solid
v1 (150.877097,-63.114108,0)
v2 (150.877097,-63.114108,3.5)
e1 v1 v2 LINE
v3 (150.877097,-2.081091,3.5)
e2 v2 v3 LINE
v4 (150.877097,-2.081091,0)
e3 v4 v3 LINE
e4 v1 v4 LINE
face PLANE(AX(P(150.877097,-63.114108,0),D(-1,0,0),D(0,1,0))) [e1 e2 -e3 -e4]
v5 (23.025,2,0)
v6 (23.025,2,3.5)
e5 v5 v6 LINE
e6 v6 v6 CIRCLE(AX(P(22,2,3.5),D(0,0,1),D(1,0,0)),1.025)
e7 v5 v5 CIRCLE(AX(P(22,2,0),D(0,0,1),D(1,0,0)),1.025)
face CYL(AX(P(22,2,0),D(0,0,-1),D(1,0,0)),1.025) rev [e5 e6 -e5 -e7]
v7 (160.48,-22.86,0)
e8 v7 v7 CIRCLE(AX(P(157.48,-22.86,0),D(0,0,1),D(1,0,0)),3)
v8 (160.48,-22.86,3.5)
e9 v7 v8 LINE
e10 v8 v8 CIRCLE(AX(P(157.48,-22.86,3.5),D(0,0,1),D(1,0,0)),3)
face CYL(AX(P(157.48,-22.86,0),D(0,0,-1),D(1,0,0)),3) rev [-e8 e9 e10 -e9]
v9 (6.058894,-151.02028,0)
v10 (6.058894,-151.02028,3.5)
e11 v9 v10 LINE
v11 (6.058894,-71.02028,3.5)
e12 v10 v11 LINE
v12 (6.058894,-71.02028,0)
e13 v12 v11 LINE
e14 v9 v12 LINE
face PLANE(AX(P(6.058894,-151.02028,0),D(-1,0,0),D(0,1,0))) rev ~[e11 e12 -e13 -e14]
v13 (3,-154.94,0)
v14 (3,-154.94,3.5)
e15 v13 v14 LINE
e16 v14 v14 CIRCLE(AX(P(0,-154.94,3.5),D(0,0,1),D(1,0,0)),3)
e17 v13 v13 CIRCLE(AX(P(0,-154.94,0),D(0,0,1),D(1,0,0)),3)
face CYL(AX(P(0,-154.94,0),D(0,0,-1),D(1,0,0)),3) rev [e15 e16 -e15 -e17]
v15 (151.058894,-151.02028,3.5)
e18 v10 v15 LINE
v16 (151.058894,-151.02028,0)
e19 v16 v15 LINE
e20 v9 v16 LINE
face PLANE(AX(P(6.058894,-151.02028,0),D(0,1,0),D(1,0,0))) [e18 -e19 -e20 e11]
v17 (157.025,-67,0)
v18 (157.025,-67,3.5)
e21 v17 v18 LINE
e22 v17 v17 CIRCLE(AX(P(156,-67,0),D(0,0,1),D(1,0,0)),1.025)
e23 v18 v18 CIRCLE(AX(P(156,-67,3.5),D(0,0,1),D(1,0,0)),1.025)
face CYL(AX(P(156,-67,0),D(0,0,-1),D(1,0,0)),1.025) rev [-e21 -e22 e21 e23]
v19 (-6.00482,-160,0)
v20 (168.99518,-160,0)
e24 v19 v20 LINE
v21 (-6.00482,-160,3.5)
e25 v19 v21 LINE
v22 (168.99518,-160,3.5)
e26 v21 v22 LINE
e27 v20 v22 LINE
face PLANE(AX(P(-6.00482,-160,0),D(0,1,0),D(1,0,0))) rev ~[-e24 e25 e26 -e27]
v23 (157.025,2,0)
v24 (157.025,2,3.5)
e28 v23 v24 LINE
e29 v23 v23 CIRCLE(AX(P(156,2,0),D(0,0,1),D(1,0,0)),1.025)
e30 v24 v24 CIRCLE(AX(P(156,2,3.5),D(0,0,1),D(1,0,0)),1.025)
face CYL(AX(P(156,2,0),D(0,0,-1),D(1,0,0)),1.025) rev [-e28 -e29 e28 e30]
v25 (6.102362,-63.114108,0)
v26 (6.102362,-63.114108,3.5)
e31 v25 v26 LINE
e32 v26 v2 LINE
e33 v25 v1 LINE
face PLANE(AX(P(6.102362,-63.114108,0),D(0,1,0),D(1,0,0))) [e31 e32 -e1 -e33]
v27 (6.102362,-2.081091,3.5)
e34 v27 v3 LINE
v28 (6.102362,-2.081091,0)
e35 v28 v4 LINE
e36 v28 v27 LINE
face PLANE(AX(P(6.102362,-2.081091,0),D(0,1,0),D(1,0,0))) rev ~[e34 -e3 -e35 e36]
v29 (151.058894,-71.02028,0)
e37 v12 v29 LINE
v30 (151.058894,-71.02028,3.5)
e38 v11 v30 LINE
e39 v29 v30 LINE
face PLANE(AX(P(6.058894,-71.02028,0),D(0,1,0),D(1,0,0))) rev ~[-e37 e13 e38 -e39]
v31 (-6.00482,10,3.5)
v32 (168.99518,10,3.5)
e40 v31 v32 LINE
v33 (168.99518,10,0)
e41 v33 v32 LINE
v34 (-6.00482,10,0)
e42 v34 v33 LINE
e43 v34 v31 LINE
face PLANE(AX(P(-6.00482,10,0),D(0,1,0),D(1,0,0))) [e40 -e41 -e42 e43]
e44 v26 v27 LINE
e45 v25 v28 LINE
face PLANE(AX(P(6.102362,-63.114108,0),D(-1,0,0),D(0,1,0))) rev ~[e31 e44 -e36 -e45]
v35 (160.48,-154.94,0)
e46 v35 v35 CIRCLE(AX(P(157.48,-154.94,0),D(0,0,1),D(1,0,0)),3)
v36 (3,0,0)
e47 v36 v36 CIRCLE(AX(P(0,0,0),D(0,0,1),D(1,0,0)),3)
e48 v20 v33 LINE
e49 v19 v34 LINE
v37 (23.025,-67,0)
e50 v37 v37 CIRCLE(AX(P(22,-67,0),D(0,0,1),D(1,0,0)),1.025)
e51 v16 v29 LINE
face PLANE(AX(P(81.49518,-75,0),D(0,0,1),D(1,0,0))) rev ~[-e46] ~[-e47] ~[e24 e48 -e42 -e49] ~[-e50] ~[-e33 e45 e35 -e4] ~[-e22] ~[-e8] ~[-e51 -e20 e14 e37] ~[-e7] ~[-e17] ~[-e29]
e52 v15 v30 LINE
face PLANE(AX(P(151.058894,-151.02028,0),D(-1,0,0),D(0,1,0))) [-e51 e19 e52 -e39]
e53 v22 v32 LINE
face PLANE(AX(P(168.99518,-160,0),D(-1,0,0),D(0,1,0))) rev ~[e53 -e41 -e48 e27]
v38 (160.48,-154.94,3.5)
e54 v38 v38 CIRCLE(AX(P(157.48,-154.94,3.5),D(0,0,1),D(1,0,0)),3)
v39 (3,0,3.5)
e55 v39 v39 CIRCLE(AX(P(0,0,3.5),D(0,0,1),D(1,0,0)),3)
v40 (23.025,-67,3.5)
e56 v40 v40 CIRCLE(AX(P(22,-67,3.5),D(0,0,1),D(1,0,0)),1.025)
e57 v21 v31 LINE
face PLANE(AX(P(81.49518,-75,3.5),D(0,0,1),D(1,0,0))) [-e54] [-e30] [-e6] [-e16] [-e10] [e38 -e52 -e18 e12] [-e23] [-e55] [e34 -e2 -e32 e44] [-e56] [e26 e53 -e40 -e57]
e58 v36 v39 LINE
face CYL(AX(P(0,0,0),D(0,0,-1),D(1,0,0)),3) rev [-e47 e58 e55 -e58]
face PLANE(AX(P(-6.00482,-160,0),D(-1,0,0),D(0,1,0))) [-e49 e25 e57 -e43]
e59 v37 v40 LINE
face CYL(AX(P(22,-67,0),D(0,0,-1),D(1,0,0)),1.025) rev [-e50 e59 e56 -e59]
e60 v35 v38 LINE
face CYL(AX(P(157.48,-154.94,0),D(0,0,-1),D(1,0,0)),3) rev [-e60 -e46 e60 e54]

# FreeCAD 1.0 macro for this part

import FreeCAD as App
import Part
import Sketcher

V = App.Vector
Q = App.Units.Quantity

doc = App.newDocument("Part")
body = doc.addObject("PartDesign::Body", "Body")

# Sketch on XY plane
sketch1 = body.newObject("Sketcher::SketchObject", "Sketch")
sketch1.AttachmentSupport = (doc.getObject("XY_Plane"), [""])
sketch1.MapMode = "FlatFace"
sketch1.addGeometry([
    Part.LineSegment(V(-6, 10, 0), V(-6, -160, 0)),  # 0
    Part.LineSegment(V(-6, -160, 0), V(169, -160, 0)),  # 1
    Part.LineSegment(V(169, -160, 0), V(169, 10, 0)),  # 2
    Part.LineSegment(V(169, 10, 0), V(-6, 10, 0)),  # 3
    Part.Circle(V(0, -154.9, 0), V(0, 0, 1), 3),  # 4
    Part.LineSegment(V(151.1, -151, 0), V(6.1, -151, 0)),  # 5
    Part.LineSegment(V(6.1, -151, 0), V(6.1, -71, 0)),  # 6
    Part.LineSegment(V(6.1, -71, 0), V(151.1, -71, 0)),  # 7
    Part.LineSegment(V(151.1, -71, 0), V(151.1, -151, 0)),  # 8
    Part.Circle(V(157.5, -154.9, 0), V(0, 0, 1), 3),  # 9
    Part.Circle(V(22, -67, 0), V(0, 0, 1), 1),  # 10
    Part.Circle(V(0, 0, 0), V(0, 0, 1), 3),  # 11
    Part.Circle(V(22, 2, 0), V(0, 0, 1), 1),  # 12
    Part.LineSegment(V(150.9, -63.1, 0), V(6.1, -63.1, 0)),  # 13
    Part.LineSegment(V(6.1, -63.1, 0), V(6.1, -2.1, 0)),  # 14
    Part.LineSegment(V(6.1, -2.1, 0), V(150.9, -2.1, 0)),  # 15
    Part.LineSegment(V(150.9, -2.1, 0), V(150.9, -63.1, 0)),  # 16
    Part.Circle(V(156, -67, 0), V(0, 0, 1), 1),  # 17
    Part.Circle(V(157.5, -22.9, 0), V(0, 0, 1), 3),  # 18
    Part.Circle(V(156, 2, 0), V(0, 0, 1), 1),  # 19
], False)
sketch1.addConstraint([
    Sketcher.Constraint("Coincident", 0, 2, 1, 1),
    Sketcher.Constraint("Coincident", 1, 2, 2, 1),
    Sketcher.Constraint("Coincident", 2, 2, 3, 1),
    Sketcher.Constraint("Coincident", 3, 2, 0, 1),
    Sketcher.Constraint("Coincident", 5, 2, 6, 1),
    Sketcher.Constraint("Coincident", 6, 2, 7, 1),
    Sketcher.Constraint("Coincident", 7, 2, 8, 1),
    Sketcher.Constraint("Coincident", 8, 2, 5, 1),
    Sketcher.Constraint("Coincident", 13, 2, 14, 1),
    Sketcher.Constraint("Coincident", 14, 2, 15, 1),
    Sketcher.Constraint("Coincident", 15, 2, 16, 1),
    Sketcher.Constraint("Coincident", 16, 2, 13, 1),
    Sketcher.Constraint("Vertical", 0),
    Sketcher.Constraint("Horizontal", 1),
    Sketcher.Constraint("Vertical", 2),
    Sketcher.Constraint("Horizontal", 3),
    Sketcher.Constraint("Horizontal", 5),
    Sketcher.Constraint("Vertical", 6),
    Sketcher.Constraint("Horizontal", 7),
    Sketcher.Constraint("Vertical", 8),
    Sketcher.Constraint("Horizontal", 13),
    Sketcher.Constraint("Vertical", 14),
    Sketcher.Constraint("Horizontal", 15),
    Sketcher.Constraint("Vertical", 16),
    Sketcher.Constraint("Coincident", 11, 3, -1, 1),
    Sketcher.Constraint("Equal", 4, 9),
    Sketcher.Constraint("Equal", 9, 11),
    Sketcher.Constraint("Equal", 10, 12),
    Sketcher.Constraint("Equal", 12, 17),
    Sketcher.Constraint("Equal", 11, 18),
    Sketcher.Constraint("Equal", 17, 19),
    Sketcher.Constraint("PointOnObject", 4, 3, -2),
    Sketcher.Constraint("Horizontal", 4, 3, 9, 3),
    Sketcher.Constraint("Horizontal", 10, 3, 17, 3),
    Sketcher.Constraint("Horizontal", 12, 3, 19, 3),
    Sketcher.Constraint("Vertical", 10, 3, 12, 3),
    Sketcher.Constraint("Vertical", 9, 3, 18, 3),
    Sketcher.Constraint("Vertical", 17, 3, 19, 3),
    Sketcher.Constraint("Diameter", 4, Q("6 mm")),
    Sketcher.Constraint("Diameter", 10, Q("2.05 mm")),
    Sketcher.Constraint("DistanceX", 1, 1, 1, 2, Q("175 mm")),
    Sketcher.Constraint("DistanceX", 5, 2, 5, 1, Q("145 mm")),
    Sketcher.Constraint("DistanceY", 0, 2, 0, 1, Q("170 mm")),
    Sketcher.Constraint("DistanceY", 6, 1, 6, 2, Q("80 mm")),
    Sketcher.Constraint("DistanceX", -1, 1, 10, 3, Q("22 mm")),
    Sketcher.Constraint("DistanceY", 10, 3, -1, 1, Q("67 mm")),
    Sketcher.Constraint("DistanceY", -1, 1, 12, 3, Q("2 mm")),
    Sketcher.Constraint("DistanceX", -1, 1, 17, 3, Q("156 mm")),
    Sketcher.Constraint("DistanceY", 0, 2, -1, 1, Q("160 mm")),
    Sketcher.Constraint("DistanceY", 4, 3, -1, 1, Q("154.94 mm")),
    Sketcher.Constraint("DistanceX", -1, 1, 9, 3, Q("157.48 mm")),
    Sketcher.Constraint("DistanceY", 18, 3, -1, 1, Q("22.86 mm")),
    Sketcher.Constraint("DistanceX", 13, 2, 13, 1, Q("144.774735 mm")),
    Sketcher.Constraint("DistanceY", 14, 1, 14, 2, Q("61.033017 mm")),
    Sketcher.Constraint("DistanceX", 0, 2, -1, 1, Q("6.00482 mm")),
    Sketcher.Constraint("DistanceY", 5, 2, -1, 1, Q("151.02028 mm")),
    Sketcher.Constraint("DistanceY", 14, 2, -1, 1, Q("2.081091 mm")),
    Sketcher.Constraint("DistanceX", 6, 2, 13, 2, Q("0.043469 mm")),
    Sketcher.Constraint("DistanceX", -1, 1, 5, 2, Q("6.058894 mm")),
])
pad1 = body.newObject("PartDesign::Pad", "Pad")
pad1.Profile = sketch1
pad1.Length = 3.5

doc.recompute()
